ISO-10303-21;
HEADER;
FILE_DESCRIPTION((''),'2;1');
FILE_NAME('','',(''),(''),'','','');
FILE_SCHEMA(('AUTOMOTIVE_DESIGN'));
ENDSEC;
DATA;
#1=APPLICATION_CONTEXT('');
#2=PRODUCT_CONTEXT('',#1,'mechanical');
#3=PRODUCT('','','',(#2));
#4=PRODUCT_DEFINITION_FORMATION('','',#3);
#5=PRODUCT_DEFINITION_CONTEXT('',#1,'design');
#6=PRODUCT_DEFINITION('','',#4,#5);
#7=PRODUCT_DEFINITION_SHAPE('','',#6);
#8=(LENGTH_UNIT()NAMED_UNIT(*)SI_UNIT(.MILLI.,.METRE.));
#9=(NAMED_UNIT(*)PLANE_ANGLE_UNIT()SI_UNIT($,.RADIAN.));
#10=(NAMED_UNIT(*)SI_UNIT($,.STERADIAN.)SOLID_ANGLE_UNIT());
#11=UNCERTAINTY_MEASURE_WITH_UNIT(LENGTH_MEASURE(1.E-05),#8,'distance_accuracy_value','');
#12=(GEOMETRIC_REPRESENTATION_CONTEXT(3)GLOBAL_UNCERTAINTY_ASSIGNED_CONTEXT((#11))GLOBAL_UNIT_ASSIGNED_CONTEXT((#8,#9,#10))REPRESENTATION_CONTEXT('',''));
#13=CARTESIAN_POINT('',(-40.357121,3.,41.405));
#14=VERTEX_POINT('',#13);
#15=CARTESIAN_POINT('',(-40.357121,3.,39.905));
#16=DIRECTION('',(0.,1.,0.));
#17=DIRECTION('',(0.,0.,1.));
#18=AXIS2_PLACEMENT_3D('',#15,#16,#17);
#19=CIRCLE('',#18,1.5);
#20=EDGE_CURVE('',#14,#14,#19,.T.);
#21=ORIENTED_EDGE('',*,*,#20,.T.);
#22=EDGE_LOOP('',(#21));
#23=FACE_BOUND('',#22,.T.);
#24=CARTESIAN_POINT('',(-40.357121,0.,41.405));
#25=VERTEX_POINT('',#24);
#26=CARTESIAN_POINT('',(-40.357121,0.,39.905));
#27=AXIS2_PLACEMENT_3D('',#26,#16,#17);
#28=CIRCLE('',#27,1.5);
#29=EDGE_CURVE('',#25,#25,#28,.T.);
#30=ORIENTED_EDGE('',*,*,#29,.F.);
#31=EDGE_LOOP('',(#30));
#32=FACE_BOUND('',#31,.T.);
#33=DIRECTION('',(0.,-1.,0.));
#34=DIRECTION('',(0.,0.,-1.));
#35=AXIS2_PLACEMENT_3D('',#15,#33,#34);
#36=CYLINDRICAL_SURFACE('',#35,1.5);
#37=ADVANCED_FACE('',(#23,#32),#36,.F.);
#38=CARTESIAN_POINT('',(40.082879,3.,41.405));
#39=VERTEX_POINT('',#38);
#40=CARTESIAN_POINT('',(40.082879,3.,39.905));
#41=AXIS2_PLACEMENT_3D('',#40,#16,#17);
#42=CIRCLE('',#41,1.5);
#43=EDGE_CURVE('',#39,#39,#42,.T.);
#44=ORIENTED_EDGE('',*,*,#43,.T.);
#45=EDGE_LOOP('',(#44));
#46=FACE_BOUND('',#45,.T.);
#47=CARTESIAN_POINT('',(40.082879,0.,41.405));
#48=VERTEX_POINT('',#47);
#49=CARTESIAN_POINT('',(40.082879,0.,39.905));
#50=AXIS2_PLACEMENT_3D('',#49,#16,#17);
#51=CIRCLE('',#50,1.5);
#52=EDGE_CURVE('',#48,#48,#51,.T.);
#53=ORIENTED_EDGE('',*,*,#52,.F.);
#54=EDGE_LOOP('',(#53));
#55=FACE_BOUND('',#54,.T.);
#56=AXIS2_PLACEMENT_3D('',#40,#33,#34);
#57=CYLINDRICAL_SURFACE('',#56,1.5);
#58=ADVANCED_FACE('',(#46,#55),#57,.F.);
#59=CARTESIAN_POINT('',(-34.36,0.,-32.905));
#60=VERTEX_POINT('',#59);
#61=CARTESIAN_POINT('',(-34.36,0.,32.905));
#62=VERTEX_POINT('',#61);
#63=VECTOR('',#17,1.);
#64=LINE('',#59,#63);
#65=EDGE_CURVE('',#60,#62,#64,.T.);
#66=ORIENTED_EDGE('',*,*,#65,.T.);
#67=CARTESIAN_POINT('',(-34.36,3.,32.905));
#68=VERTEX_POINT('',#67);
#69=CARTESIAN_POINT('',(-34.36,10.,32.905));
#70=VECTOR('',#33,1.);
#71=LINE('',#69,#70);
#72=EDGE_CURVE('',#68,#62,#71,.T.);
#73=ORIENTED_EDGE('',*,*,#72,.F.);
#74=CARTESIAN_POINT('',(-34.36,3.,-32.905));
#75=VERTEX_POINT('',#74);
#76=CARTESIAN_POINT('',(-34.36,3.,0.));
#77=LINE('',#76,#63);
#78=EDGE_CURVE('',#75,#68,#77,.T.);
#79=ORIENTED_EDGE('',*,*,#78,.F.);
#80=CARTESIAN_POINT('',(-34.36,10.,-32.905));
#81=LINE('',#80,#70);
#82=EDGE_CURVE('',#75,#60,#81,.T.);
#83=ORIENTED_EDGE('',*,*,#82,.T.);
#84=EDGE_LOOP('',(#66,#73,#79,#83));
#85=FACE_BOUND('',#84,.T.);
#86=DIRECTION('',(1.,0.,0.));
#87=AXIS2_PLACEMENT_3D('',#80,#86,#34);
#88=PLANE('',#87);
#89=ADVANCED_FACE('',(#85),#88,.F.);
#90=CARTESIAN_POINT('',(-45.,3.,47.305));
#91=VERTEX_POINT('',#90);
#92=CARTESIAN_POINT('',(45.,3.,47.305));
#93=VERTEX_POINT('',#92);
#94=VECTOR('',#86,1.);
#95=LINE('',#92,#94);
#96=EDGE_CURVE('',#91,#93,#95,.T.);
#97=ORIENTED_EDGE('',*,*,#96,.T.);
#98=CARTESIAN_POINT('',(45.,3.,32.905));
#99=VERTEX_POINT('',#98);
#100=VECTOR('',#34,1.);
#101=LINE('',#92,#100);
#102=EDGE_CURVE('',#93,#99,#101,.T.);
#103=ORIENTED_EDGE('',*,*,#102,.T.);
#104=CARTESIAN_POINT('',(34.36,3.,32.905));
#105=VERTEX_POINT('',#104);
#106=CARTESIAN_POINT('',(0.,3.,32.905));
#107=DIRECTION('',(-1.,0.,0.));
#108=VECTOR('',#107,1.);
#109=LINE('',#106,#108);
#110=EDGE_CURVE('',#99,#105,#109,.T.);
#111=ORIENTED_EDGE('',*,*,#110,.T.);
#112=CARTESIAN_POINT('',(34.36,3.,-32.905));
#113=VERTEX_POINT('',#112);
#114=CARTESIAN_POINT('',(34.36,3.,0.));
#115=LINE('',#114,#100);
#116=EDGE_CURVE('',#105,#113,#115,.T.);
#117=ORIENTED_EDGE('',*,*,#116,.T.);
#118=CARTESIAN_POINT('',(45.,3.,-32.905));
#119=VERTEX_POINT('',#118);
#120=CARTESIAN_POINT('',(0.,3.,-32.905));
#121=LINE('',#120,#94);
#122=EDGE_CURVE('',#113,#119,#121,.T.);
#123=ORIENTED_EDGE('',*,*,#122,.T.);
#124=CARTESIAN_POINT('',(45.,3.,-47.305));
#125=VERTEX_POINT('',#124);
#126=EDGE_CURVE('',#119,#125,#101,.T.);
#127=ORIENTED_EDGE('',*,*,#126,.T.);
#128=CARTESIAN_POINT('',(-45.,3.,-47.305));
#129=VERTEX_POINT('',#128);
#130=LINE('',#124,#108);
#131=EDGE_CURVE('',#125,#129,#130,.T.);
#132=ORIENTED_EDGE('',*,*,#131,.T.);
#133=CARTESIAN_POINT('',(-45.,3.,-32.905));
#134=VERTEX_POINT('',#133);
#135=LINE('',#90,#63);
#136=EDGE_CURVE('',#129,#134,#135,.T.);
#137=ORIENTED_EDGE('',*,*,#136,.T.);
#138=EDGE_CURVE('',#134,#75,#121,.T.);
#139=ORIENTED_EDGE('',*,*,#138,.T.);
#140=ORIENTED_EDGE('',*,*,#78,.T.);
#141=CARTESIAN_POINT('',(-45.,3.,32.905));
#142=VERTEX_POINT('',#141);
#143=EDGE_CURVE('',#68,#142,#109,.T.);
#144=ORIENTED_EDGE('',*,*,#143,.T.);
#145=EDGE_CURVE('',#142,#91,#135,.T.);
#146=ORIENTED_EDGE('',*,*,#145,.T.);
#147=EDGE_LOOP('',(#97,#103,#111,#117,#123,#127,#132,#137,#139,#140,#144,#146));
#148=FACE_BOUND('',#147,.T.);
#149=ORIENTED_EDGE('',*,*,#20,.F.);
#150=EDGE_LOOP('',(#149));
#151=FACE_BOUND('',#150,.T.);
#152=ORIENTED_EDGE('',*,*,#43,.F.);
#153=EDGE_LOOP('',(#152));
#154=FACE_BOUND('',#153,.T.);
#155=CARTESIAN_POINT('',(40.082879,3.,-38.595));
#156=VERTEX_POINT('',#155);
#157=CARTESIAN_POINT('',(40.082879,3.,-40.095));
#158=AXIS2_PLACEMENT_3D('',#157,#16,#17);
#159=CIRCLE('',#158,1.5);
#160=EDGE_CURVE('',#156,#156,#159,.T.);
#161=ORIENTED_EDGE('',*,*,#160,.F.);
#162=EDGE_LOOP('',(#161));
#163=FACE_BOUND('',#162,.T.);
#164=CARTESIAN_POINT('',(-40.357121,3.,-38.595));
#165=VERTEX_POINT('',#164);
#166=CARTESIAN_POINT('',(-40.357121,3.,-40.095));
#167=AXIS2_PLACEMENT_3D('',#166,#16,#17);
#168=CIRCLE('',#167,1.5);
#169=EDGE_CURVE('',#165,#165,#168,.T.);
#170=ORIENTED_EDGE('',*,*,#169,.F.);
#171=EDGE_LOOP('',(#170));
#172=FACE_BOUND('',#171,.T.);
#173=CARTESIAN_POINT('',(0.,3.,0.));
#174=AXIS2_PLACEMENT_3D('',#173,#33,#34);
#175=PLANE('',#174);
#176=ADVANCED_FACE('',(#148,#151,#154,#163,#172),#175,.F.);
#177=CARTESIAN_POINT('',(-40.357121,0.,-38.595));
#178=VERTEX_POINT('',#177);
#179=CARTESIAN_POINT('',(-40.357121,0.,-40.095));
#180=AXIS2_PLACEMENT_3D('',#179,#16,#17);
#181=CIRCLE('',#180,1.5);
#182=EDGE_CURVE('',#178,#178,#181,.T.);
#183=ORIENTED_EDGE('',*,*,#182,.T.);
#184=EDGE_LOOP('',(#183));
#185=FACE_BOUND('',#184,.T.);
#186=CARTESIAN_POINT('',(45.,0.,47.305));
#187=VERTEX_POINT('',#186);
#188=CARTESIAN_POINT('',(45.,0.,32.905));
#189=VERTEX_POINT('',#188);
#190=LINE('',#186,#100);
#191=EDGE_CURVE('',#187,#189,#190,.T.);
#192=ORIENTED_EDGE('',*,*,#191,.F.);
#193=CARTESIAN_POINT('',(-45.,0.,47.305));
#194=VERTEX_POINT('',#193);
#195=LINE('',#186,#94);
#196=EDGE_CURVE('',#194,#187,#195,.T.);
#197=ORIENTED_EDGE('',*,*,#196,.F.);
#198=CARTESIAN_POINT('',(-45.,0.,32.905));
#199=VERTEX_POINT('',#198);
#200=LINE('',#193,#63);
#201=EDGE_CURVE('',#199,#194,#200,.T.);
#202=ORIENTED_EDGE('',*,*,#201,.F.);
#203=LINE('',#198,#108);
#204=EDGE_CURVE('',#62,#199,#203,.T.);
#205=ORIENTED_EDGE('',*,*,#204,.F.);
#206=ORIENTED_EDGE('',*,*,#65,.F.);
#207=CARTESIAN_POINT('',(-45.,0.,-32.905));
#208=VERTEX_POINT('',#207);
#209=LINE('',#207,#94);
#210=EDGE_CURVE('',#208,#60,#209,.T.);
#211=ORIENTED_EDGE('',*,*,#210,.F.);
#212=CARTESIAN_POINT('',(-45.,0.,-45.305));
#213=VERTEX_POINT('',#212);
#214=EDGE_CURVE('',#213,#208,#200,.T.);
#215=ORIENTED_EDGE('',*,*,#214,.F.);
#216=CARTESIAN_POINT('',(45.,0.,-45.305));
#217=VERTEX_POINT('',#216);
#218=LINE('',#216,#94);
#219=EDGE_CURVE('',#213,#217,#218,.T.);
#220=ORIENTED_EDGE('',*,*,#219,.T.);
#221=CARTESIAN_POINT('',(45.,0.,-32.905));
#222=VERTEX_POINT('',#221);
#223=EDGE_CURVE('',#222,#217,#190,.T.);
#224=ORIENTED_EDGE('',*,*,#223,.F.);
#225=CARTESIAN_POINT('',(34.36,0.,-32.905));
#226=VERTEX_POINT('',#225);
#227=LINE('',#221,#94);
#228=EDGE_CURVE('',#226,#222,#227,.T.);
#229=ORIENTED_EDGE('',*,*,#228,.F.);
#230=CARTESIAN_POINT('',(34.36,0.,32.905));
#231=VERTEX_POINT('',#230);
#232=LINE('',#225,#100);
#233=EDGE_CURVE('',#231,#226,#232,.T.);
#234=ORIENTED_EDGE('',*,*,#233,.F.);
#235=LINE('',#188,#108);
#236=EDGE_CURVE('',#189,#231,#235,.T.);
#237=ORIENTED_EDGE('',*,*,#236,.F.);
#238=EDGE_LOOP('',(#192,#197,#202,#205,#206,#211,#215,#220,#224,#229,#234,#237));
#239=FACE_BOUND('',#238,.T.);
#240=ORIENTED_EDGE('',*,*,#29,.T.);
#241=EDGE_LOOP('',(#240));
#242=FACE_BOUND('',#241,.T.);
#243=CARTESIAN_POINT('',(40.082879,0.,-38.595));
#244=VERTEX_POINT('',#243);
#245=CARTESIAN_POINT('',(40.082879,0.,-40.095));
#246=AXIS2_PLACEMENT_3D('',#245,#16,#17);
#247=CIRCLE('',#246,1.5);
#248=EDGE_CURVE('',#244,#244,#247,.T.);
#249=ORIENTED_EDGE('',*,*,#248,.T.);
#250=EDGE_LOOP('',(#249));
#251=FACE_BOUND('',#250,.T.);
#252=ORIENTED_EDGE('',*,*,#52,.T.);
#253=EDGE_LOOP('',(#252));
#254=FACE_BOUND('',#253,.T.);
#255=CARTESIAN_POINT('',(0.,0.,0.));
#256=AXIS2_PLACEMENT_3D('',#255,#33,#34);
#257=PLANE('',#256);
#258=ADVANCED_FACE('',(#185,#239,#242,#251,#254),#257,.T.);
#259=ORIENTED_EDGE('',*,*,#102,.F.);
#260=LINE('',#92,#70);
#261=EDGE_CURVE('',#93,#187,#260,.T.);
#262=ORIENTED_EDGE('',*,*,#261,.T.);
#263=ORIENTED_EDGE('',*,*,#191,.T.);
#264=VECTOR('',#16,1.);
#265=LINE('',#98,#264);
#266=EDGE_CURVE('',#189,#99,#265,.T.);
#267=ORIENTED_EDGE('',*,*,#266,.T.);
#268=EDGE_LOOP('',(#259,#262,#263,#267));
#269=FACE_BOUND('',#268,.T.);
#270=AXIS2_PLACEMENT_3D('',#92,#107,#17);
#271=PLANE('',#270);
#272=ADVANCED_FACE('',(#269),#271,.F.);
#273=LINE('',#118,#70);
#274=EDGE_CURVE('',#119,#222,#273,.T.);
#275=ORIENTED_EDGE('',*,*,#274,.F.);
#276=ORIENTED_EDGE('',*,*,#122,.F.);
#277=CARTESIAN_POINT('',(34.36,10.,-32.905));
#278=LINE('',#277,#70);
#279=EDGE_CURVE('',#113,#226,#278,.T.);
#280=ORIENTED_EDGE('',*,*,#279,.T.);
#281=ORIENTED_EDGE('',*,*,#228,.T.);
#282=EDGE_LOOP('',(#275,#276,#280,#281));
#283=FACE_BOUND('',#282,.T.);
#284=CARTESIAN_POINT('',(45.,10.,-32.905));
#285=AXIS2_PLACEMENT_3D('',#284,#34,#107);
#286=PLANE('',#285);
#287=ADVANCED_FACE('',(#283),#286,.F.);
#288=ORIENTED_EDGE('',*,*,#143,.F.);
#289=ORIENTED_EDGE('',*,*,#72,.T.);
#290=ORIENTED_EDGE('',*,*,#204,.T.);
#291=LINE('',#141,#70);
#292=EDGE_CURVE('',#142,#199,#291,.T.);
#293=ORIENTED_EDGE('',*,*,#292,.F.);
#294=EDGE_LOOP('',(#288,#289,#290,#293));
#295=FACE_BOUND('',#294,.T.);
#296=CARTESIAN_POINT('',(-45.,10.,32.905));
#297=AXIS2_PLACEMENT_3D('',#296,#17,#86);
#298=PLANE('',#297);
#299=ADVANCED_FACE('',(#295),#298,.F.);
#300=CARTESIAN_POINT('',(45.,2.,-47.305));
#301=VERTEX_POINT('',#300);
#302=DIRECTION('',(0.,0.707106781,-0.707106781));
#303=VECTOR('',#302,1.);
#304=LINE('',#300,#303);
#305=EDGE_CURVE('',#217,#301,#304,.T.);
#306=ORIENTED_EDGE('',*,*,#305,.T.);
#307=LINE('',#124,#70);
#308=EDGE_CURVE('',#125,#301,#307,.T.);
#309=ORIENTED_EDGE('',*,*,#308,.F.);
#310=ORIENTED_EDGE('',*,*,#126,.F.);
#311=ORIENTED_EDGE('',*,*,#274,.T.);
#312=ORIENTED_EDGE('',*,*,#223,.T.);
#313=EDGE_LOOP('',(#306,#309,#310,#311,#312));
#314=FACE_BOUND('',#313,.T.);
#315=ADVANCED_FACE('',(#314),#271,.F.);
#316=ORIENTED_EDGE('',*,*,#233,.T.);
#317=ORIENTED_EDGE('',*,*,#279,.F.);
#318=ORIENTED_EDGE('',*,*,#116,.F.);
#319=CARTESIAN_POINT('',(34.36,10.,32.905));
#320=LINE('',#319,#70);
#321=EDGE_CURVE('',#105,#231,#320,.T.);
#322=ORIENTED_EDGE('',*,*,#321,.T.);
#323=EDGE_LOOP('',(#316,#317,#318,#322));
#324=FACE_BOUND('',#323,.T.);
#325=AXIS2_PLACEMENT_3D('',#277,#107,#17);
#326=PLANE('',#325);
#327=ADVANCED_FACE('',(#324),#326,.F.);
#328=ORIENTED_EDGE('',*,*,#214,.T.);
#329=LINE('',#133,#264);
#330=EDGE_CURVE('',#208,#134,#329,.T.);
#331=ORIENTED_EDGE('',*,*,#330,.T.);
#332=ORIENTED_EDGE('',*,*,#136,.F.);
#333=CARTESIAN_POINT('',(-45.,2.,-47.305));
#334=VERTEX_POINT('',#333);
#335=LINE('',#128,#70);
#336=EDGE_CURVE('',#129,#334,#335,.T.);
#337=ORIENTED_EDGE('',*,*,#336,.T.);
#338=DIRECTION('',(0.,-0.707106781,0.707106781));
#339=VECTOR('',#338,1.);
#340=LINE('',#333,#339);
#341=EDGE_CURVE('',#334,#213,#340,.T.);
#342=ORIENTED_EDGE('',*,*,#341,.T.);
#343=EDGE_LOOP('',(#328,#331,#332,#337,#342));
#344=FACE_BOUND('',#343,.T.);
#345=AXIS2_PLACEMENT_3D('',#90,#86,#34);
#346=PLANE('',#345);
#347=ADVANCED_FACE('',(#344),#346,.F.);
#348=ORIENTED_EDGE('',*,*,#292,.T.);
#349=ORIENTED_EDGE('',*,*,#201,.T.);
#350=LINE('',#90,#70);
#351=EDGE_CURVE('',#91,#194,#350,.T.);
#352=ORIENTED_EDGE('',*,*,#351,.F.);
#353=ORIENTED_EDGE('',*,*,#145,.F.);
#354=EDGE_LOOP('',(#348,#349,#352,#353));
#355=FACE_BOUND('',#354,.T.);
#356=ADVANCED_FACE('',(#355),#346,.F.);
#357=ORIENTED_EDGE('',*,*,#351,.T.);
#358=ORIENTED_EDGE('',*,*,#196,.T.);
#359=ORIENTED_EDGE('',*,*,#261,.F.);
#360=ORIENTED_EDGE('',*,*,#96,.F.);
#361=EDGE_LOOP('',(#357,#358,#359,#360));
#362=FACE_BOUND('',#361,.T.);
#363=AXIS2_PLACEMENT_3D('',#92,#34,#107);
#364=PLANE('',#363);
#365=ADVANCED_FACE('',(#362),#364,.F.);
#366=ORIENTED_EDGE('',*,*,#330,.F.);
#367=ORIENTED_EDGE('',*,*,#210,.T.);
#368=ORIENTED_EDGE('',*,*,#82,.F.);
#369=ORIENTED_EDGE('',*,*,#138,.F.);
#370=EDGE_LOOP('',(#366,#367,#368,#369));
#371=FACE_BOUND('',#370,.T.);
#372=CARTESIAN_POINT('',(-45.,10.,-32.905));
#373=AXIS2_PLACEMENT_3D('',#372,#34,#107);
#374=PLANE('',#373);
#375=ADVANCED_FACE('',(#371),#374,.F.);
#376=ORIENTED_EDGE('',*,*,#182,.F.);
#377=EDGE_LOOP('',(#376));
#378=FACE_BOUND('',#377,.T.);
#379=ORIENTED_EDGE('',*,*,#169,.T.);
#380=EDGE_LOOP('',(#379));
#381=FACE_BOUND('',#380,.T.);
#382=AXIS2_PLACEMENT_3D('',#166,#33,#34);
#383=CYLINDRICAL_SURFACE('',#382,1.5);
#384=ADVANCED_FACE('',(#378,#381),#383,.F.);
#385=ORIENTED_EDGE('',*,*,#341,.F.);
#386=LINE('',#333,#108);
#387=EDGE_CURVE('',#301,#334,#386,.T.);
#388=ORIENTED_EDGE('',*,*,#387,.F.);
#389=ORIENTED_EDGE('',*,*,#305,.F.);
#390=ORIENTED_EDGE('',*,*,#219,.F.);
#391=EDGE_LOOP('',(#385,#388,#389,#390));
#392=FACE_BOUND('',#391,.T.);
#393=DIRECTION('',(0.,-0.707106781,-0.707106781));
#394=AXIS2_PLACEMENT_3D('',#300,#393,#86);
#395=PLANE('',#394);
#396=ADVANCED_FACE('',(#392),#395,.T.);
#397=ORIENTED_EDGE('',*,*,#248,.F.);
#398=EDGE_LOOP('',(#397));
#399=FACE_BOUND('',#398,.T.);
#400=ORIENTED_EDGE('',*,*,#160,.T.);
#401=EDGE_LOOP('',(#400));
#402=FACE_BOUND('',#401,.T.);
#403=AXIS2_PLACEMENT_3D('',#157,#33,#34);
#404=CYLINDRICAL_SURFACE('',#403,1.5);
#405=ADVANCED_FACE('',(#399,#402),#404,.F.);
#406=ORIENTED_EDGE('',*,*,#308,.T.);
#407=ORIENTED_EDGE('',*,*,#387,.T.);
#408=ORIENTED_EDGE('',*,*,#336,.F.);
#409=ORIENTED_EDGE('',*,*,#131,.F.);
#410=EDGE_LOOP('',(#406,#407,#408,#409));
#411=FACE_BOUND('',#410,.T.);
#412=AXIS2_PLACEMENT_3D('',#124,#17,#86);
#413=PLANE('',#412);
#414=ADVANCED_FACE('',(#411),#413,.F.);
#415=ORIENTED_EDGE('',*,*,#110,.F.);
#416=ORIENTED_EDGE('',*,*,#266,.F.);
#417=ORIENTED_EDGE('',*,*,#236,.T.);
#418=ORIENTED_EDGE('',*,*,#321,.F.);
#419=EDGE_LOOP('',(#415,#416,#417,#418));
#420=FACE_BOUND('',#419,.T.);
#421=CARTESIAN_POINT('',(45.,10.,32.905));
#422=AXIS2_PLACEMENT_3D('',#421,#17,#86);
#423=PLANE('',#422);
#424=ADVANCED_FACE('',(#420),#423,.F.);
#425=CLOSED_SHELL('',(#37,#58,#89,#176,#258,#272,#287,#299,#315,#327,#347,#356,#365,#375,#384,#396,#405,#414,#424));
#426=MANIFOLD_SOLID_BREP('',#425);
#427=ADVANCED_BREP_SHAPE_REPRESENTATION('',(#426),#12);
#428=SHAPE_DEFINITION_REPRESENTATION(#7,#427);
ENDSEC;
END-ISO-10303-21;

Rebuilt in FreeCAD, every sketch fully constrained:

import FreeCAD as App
import Part
import Sketcher


def edges_at(feature, points):
    """Names of the edges that pass closest to the given points."""
    edges = feature.Shape.Edges
    near = lambda p: min(range(len(edges)), key=lambda i: edges[i].distToShape(Part.Vertex(*p))[0])
    return sorted({f"Edge{near(p) + 1}" for p in points})

doc = App.newDocument("Part")
body = doc.addObject("PartDesign::Body", "Body")

# Sketch on XZ plane
sketch1 = doc.addObject("Sketcher::SketchObject", "Sketch")
body.addObject(sketch1)
sketch1.AttachmentSupport = (doc.XZ_Plane, [""])
sketch1.MapMode = "FlatFace"
sketch1.addGeometry([
    Part.LineSegment(App.Vector(-45, -47.3, 0), App.Vector(-45, 47.3, 0)),  # 0
    Part.LineSegment(App.Vector(-45, 47.3, 0), App.Vector(45, 47.3, 0)),  # 1
    Part.LineSegment(App.Vector(45, 47.3, 0), App.Vector(45, -47.3, 0)),  # 2
    Part.LineSegment(App.Vector(45, -47.3, 0), App.Vector(-45, -47.3, 0)),  # 3
    Part.Circle(App.Vector(-40.4, 39.9, 0), App.Vector(0, 0, 1), 1.5),  # 4
    Part.Circle(App.Vector(40.1, 39.9, 0), App.Vector(0, 0, 1), 1.5),  # 5
    Part.Circle(App.Vector(-40.4, -40.1, 0), App.Vector(0, 0, 1), 1.5),  # 6
    Part.Circle(App.Vector(40.1, -40.1, 0), App.Vector(0, 0, 1), 1.5),  # 7
], False)
sketch1.addConstraint([
    Sketcher.Constraint("Coincident", 0, 2, 1, 1),
    Sketcher.Constraint("Coincident", 1, 2, 2, 1),
    Sketcher.Constraint("Coincident", 2, 2, 3, 1),
    Sketcher.Constraint("Coincident", 3, 2, 0, 1),
    Sketcher.Constraint("Vertical", 0),
    Sketcher.Constraint("Horizontal", 1),
    Sketcher.Constraint("Vertical", 2),
    Sketcher.Constraint("Horizontal", 3),
    Sketcher.Constraint("Equal", 4, 5),
    Sketcher.Constraint("Equal", 5, 6),
    Sketcher.Constraint("Equal", 6, 7),
    Sketcher.Constraint("Symmetric", 0, 2, 2, 2, -1, 1),
    Sketcher.Constraint("Horizontal", 4, 3, 5, 3),
    Sketcher.Constraint("Horizontal", 6, 3, 7, 3),
    Sketcher.Constraint("Vertical", 4, 3, 6, 3),
    Sketcher.Constraint("Vertical", 5, 3, 7, 3),
    Sketcher.Constraint("Diameter", 4, 3.0),
    Sketcher.Constraint("DistanceX", 1, 1, 1, 2, 90.0),
    Sketcher.Constraint("DistanceY", 6, 3, 4, 3, 80.0),
    Sketcher.Constraint("DistanceY", 0, 1, 0, 2, 94.61),
    Sketcher.Constraint("DistanceY", 4, 3, 0, 2, 7.4),
    Sketcher.Constraint("DistanceX", 4, 3, 5, 3, 80.44),
    Sketcher.Constraint("DistanceX", 4, 3, -1, 1, 40.357121),
])
pad1 = doc.addObject("PartDesign::Pad", "Pad")
body.addObject(pad1)
pad1.Profile = sketch1
pad1.Length = 3
pad1.Reversed = True

# Sketch on XZ plane
sketch2 = doc.addObject("Sketcher::SketchObject", "Sketch001")
body.addObject(sketch2)
sketch2.AttachmentSupport = (doc.XZ_Plane, [""])
sketch2.MapMode = "FlatFace"
sketch2.addGeometry([
    Part.LineSegment(App.Vector(-34, -33, 0), App.Vector(-34, 33, 0)),  # 0
    Part.LineSegment(App.Vector(-34, 33, 0), App.Vector(-45, 33, 0)),  # 1
    Part.LineSegment(App.Vector(-45, 33, 0), App.Vector(-45, -33, 0)),  # 2
    Part.LineSegment(App.Vector(-45, -33, 0), App.Vector(-34, -33, 0)),  # 3
    Part.LineSegment(App.Vector(45, -33, 0), App.Vector(45, 33, 0)),  # 4
    Part.LineSegment(App.Vector(45, 33, 0), App.Vector(34, 33, 0)),  # 5
    Part.LineSegment(App.Vector(34, 33, 0), App.Vector(34, -33, 0)),  # 6
    Part.LineSegment(App.Vector(34, -33, 0), App.Vector(45, -33, 0)),  # 7
], False)
sketch2.addConstraint([
    Sketcher.Constraint("Coincident", 0, 2, 1, 1),
    Sketcher.Constraint("Coincident", 1, 2, 2, 1),
    Sketcher.Constraint("Coincident", 2, 2, 3, 1),
    Sketcher.Constraint("Coincident", 3, 2, 0, 1),
    Sketcher.Constraint("Coincident", 4, 2, 5, 1),
    Sketcher.Constraint("Coincident", 5, 2, 6, 1),
    Sketcher.Constraint("Coincident", 6, 2, 7, 1),
    Sketcher.Constraint("Coincident", 7, 2, 4, 1),
    Sketcher.Constraint("Vertical", 0),
    Sketcher.Constraint("Horizontal", 1),
    Sketcher.Constraint("Vertical", 2),
    Sketcher.Constraint("Horizontal", 3),
    Sketcher.Constraint("Vertical", 4),
    Sketcher.Constraint("Horizontal", 5),
    Sketcher.Constraint("Vertical", 6),
    Sketcher.Constraint("Horizontal", 7),
    Sketcher.Constraint("Symmetric", 2, 2, 4, 2, -1, 1),
    Sketcher.Constraint("Symmetric", 0, 2, 6, 2, -1, 1),
    Sketcher.Constraint("Horizontal", 1, 2, 4, 2),
    Sketcher.Constraint("DistanceX", 1, 2, -1, 1, 45.0),
    Sketcher.Constraint("DistanceX", 1, 2, 1, 1, 10.64),
    Sketcher.Constraint("DistanceY", 0, 1, 0, 2, 65.81),
])
pocket1 = doc.addObject("PartDesign::Pocket", "Pocket")
body.addObject(pocket1)
pocket1.Profile = sketch2
pocket1.Length = 10
doc.recompute()

chamfer = doc.addObject("PartDesign::Chamfer", "Chamfer")
body.addObject(chamfer)
chamfer.Base = (pocket1, edges_at(pocket1, [(0, 0, -47.305)]))
chamfer.Size = 2

doc.recompute()
